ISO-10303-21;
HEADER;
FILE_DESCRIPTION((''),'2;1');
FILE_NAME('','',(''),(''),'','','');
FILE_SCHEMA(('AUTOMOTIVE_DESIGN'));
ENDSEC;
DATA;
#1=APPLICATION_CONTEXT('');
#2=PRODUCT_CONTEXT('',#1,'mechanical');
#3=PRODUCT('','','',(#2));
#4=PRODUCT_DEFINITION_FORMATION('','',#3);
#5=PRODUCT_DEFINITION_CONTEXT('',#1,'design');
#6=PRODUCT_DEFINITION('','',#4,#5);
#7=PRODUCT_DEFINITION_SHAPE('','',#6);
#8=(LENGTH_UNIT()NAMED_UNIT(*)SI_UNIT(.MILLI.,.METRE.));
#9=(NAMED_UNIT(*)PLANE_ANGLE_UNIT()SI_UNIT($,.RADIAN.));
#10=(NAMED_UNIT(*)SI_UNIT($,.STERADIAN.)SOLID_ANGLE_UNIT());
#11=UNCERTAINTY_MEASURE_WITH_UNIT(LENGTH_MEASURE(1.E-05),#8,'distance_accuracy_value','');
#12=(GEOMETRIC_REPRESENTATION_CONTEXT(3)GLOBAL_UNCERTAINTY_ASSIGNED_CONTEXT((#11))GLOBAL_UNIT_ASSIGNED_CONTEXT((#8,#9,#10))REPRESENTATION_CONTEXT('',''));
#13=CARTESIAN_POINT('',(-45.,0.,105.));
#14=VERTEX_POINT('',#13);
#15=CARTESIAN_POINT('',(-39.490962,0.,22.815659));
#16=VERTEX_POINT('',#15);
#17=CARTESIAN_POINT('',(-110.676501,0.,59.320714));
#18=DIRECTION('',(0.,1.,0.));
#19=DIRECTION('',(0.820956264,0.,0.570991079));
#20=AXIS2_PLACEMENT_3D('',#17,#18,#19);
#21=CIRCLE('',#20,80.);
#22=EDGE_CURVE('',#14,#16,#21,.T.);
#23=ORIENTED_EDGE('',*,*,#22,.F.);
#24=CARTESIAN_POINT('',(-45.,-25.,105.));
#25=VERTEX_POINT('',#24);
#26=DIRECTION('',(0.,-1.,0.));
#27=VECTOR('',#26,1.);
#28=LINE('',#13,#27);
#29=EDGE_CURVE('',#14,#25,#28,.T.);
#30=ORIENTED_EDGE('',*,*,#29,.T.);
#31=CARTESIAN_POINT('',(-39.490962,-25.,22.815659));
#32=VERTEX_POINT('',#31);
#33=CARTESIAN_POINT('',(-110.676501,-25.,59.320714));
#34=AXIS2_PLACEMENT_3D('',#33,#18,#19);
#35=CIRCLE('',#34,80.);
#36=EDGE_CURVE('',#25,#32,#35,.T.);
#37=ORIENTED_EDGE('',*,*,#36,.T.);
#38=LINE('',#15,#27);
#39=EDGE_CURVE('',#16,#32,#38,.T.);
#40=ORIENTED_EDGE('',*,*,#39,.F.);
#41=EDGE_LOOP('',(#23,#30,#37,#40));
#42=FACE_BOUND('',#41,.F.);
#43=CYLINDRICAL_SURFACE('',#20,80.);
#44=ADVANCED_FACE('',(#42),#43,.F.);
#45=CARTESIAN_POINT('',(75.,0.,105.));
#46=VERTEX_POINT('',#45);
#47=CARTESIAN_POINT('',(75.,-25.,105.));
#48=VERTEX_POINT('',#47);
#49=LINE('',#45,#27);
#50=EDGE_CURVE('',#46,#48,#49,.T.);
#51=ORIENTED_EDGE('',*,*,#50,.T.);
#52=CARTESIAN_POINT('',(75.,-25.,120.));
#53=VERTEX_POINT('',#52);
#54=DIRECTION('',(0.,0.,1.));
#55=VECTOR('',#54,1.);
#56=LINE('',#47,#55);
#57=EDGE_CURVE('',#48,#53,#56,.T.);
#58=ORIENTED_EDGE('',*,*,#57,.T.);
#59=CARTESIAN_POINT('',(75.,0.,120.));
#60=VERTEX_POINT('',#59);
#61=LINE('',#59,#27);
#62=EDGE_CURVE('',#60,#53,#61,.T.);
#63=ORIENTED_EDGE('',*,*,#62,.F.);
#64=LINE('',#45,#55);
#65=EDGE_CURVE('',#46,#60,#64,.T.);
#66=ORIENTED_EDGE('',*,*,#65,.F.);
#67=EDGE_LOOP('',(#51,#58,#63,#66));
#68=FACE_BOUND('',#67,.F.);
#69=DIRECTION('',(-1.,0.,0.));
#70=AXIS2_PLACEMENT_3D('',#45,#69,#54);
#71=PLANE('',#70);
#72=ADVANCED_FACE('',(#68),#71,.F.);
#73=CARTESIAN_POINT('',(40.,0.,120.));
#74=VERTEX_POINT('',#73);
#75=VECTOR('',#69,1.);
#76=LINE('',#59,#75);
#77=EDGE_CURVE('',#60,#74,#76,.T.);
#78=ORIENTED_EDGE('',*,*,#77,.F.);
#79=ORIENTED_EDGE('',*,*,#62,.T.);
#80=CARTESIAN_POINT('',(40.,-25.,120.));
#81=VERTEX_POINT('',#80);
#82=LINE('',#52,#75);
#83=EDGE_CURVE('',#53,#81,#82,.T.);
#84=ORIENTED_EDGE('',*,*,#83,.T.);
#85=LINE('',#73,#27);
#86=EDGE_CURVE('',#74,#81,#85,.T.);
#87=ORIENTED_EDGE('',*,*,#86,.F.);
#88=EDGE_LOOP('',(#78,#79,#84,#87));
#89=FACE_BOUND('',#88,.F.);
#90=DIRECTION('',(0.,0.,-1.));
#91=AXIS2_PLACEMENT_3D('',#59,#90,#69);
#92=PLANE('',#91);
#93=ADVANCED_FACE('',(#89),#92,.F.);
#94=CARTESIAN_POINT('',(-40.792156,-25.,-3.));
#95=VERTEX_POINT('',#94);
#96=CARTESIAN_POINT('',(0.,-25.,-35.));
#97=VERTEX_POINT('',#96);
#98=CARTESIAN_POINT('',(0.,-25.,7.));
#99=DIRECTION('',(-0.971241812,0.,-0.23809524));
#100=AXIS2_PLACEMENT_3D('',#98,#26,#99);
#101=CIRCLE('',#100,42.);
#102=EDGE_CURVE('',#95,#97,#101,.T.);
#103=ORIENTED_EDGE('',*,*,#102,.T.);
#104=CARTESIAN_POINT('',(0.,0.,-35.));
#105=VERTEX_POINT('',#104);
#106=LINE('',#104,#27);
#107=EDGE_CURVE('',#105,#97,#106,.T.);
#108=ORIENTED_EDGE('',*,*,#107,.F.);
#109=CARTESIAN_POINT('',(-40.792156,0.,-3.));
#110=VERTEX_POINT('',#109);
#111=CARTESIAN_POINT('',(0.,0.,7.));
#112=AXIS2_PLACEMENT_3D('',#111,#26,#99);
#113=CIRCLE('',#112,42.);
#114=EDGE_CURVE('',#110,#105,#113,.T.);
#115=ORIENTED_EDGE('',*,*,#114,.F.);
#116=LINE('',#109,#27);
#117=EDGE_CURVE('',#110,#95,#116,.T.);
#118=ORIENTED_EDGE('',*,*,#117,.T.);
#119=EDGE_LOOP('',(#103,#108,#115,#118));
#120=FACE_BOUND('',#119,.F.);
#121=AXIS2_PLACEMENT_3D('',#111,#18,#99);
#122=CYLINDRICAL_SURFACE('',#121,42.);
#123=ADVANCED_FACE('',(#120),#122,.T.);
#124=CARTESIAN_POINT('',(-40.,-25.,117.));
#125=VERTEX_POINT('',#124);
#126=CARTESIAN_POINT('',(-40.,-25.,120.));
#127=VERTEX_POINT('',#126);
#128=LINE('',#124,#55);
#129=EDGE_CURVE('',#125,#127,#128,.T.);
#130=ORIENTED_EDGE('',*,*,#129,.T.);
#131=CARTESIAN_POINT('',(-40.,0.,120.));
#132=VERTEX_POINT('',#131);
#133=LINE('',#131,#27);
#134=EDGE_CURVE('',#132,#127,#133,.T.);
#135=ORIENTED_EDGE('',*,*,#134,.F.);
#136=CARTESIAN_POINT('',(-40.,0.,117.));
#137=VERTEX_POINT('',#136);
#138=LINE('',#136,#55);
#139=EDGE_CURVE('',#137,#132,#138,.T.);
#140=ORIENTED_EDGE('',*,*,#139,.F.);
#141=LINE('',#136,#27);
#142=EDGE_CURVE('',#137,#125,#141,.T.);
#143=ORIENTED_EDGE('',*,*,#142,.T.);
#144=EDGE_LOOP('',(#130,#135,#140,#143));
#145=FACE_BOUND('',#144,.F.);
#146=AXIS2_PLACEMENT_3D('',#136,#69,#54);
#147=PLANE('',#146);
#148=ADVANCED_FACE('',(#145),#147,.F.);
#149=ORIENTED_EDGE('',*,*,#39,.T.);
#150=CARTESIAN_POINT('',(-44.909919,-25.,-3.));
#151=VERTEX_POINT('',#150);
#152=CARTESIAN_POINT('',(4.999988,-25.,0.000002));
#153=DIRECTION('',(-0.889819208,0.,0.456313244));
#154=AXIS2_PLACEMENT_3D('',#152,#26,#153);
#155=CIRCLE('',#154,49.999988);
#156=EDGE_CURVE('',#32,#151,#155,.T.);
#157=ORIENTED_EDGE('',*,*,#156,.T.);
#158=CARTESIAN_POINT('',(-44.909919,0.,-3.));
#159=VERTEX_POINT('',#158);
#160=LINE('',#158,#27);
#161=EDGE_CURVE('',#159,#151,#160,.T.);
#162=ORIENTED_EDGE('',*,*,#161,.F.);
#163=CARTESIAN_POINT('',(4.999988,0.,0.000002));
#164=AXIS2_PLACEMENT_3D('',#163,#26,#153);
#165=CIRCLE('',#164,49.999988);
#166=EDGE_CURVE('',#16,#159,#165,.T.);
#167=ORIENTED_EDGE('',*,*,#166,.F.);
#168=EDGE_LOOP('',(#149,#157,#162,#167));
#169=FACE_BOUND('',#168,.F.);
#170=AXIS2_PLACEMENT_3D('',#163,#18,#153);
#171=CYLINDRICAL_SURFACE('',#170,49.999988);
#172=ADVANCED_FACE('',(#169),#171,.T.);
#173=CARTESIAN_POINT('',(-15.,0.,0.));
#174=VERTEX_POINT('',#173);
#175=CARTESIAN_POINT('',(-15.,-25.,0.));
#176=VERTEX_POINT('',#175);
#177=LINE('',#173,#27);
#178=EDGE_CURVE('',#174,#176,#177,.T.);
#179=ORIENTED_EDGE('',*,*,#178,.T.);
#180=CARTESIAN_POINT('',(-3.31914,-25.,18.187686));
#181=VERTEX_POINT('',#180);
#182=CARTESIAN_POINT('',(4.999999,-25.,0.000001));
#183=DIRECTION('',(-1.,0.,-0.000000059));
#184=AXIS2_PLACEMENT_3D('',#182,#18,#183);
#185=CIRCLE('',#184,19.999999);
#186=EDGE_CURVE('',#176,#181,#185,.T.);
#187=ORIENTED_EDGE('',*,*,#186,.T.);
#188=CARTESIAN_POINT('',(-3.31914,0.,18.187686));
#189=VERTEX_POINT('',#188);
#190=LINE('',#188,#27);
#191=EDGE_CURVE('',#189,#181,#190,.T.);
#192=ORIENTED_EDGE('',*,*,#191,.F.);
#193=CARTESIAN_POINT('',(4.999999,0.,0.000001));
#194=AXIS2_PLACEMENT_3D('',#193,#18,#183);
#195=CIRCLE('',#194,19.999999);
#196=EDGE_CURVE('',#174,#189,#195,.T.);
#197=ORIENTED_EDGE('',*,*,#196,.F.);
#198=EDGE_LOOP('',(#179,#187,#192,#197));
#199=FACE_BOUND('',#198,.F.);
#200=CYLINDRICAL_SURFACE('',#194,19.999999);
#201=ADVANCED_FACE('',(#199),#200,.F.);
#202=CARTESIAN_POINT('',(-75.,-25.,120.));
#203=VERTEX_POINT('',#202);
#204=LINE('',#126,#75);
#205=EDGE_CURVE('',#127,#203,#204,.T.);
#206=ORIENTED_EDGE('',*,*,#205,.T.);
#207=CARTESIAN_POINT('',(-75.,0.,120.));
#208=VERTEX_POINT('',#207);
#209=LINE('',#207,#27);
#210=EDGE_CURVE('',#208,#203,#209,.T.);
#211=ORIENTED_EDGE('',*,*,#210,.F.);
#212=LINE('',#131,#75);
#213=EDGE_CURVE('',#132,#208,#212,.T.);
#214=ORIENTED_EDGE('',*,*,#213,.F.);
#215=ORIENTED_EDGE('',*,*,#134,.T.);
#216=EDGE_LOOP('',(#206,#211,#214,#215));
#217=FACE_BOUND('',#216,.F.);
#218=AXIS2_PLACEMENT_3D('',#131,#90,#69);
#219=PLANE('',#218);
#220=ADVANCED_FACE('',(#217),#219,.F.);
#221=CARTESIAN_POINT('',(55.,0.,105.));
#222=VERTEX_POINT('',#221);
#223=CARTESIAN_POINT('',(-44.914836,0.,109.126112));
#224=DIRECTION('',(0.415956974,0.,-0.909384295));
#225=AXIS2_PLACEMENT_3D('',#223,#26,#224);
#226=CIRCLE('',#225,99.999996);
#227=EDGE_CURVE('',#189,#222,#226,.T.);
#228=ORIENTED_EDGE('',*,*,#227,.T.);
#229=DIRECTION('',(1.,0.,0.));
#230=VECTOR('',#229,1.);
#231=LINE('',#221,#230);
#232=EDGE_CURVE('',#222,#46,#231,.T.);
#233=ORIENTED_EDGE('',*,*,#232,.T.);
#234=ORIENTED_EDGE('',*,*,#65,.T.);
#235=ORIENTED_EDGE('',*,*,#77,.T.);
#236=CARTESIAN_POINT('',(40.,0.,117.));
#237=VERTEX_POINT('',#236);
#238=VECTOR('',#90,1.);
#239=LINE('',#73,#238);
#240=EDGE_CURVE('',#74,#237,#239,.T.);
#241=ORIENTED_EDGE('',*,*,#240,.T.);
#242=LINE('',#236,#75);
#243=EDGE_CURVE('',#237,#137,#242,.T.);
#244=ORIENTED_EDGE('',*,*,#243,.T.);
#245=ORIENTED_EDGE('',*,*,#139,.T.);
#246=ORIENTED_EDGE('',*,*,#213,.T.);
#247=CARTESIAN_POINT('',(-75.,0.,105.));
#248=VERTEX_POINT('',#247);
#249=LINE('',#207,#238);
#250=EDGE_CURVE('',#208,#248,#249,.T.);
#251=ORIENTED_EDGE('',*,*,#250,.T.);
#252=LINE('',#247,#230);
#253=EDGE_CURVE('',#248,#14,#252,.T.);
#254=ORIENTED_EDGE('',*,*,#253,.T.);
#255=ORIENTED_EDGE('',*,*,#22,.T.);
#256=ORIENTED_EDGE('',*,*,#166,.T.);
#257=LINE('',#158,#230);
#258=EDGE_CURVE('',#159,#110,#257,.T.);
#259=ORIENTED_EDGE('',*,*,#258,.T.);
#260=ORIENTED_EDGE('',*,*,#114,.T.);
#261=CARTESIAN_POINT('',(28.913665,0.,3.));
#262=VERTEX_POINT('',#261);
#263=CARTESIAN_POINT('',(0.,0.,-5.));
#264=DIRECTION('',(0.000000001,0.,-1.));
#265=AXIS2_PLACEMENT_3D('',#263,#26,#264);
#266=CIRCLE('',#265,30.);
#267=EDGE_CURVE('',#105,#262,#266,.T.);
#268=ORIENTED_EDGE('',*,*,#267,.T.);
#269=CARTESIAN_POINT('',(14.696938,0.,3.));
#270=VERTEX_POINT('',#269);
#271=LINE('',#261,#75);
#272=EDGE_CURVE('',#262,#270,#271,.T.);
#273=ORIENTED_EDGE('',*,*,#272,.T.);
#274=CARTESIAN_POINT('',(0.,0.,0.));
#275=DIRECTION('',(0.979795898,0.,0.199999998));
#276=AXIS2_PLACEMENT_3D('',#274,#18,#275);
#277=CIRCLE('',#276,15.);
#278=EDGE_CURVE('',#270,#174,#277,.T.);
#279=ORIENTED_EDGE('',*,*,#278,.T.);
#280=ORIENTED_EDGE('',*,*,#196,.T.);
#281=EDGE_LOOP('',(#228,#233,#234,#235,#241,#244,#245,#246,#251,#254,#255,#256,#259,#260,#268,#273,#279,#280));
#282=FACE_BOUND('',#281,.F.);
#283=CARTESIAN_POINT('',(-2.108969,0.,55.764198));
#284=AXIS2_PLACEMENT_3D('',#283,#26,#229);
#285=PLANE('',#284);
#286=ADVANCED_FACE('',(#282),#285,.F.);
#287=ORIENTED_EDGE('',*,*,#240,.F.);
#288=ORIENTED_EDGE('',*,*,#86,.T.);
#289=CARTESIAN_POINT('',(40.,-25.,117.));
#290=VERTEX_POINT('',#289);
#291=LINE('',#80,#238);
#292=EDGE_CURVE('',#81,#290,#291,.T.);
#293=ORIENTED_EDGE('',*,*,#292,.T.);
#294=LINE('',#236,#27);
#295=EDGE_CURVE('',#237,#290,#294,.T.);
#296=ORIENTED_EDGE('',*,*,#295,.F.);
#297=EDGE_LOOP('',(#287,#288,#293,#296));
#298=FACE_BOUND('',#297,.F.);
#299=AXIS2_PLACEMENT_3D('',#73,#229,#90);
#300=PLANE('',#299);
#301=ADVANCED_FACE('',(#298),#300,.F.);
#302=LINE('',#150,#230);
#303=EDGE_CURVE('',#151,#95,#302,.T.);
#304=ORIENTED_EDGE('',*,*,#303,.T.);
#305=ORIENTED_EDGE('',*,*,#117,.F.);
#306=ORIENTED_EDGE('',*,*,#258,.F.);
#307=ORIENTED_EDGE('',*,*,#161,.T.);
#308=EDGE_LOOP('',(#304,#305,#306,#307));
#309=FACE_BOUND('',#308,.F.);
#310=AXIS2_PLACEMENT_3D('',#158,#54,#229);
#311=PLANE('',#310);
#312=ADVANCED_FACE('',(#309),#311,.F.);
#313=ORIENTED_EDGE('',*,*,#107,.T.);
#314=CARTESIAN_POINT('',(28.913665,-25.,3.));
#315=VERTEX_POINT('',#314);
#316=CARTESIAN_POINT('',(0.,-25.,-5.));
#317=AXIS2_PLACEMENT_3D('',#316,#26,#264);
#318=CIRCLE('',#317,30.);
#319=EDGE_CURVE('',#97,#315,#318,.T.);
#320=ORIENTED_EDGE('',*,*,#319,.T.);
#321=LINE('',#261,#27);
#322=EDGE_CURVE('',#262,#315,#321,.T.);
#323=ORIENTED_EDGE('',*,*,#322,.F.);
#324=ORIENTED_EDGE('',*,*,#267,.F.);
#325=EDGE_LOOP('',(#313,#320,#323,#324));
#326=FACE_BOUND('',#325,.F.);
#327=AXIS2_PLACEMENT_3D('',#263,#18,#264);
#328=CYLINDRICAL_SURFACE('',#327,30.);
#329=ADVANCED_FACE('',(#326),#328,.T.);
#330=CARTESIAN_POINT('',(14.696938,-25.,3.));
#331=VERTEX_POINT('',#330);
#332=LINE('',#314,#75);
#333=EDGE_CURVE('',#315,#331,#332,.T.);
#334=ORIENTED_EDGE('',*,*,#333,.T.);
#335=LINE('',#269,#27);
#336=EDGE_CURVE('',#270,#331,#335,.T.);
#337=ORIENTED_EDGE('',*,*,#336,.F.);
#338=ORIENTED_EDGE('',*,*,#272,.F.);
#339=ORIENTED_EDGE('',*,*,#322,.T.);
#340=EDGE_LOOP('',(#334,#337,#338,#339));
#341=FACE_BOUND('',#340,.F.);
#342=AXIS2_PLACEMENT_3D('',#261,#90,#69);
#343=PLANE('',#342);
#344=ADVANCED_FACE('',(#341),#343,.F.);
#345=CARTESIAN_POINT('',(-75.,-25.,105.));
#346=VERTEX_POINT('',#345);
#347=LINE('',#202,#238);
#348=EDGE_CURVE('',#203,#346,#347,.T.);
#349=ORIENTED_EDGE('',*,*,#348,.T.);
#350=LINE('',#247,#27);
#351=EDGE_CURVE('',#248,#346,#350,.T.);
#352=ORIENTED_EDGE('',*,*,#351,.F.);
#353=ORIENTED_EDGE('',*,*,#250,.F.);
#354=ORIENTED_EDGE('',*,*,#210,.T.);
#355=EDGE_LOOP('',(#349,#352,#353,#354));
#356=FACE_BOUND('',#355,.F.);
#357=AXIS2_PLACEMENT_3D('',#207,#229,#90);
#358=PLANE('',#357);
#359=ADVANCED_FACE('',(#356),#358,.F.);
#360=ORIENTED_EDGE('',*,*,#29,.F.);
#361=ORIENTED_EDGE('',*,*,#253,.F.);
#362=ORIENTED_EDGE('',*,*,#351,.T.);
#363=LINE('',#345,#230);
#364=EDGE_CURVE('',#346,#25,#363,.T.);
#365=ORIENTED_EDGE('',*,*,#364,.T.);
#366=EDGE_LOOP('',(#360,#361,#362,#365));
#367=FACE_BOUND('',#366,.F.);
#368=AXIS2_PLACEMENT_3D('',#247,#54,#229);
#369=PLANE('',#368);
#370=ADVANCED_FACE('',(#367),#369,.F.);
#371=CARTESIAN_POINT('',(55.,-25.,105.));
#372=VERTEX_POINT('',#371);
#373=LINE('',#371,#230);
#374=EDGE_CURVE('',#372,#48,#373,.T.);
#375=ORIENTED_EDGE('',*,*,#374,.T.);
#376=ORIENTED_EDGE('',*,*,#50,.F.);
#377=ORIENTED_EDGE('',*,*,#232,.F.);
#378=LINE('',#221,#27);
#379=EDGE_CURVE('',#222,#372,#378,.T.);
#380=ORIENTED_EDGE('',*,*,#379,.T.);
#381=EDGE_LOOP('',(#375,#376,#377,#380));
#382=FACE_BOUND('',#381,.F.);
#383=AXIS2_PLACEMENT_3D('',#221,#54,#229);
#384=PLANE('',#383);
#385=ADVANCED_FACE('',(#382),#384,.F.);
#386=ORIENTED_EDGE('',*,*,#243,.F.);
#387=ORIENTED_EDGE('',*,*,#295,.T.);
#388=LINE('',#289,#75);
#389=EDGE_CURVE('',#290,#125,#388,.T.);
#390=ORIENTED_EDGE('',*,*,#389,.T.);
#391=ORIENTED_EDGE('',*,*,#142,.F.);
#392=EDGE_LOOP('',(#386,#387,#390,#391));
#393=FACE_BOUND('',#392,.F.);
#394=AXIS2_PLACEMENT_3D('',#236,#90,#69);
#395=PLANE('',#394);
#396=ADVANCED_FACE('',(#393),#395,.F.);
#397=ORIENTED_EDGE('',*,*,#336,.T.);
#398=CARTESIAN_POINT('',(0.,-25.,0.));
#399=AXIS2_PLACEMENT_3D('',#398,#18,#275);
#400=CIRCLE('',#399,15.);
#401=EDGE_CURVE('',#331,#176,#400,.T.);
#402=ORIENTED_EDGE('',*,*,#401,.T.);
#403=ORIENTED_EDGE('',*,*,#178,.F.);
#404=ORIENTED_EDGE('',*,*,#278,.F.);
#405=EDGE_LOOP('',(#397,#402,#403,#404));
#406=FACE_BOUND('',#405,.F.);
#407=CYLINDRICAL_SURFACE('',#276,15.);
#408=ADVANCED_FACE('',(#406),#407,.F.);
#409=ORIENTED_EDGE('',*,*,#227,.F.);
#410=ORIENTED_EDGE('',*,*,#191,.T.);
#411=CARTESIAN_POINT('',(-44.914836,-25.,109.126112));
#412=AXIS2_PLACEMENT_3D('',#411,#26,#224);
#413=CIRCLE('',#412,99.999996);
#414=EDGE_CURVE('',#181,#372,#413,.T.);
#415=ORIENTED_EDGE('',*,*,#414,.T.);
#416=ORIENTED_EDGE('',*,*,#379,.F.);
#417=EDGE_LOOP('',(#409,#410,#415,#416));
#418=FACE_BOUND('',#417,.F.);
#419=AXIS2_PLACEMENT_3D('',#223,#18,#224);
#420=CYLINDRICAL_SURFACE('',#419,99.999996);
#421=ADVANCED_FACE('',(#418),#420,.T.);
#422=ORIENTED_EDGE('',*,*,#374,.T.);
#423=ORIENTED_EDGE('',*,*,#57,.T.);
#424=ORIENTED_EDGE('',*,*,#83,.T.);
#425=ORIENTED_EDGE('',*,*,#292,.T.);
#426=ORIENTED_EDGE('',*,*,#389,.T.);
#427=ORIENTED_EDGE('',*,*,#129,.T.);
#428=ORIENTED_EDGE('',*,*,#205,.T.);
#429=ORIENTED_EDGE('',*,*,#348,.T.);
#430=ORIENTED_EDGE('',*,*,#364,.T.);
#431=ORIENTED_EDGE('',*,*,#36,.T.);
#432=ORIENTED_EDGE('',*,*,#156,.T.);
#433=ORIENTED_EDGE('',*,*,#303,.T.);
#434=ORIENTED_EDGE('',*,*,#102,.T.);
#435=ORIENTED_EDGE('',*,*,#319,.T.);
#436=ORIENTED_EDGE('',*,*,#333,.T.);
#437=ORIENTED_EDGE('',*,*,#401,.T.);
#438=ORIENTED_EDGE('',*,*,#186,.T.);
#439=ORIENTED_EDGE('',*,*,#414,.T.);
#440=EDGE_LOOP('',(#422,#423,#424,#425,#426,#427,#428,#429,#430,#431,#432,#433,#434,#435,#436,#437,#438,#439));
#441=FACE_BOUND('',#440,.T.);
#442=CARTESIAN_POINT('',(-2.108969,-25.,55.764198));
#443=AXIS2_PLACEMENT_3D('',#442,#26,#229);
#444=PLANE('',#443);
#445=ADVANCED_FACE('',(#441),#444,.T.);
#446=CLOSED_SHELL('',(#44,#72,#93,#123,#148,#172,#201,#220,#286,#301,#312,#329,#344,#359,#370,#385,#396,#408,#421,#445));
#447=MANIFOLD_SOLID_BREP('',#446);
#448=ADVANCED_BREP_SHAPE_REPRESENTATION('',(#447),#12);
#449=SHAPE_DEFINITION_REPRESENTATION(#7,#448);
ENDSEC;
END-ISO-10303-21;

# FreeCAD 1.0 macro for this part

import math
import FreeCAD as App
import Part
import Sketcher
Q = App.Units.Quantity

doc = App.newDocument("Part")
body = doc.addObject("PartDesign::Body", "Body")

sketch1 = body.newObject("Sketcher::SketchObject", "Sketch")
sketch1.AttachmentSupport = (doc.getObject("XZ_Plane"), [""])
sketch1.MapMode = "FlatFace"
sketch1.addGeometry([
    Part.ArcOfCircle(Part.Circle(App.Vector(-44.9, 109.1, 0), App.Vector(0, 0, 1), 100), math.radians(-65), math.radians(-2)),
    Part.LineSegment(App.Vector(55, 105, 0), App.Vector(75, 105, 0)),
    Part.LineSegment(App.Vector(75, 105, 0), App.Vector(75, 120, 0)),
    Part.LineSegment(App.Vector(75, 120, 0), App.Vector(40, 120, 0)),
    Part.LineSegment(App.Vector(40, 120, 0), App.Vector(40, 117, 0)),
    Part.LineSegment(App.Vector(40, 117, 0), App.Vector(-40, 117, 0)),
    Part.LineSegment(App.Vector(-40, 117, 0), App.Vector(-40, 120, 0)),
    Part.LineSegment(App.Vector(-40, 120, 0), App.Vector(-75, 120, 0)),
    Part.LineSegment(App.Vector(-75, 120, 0), App.Vector(-75, 105, 0)),
    Part.LineSegment(App.Vector(-75, 105, 0), App.Vector(-45, 105, 0)),
    Part.ArcOfCircle(Part.Circle(App.Vector(-110.7, 59.3, 0), App.Vector(0, 0, 1), 80), math.radians(-27), math.radians(35)),
    Part.ArcOfCircle(Part.Circle(App.Vector(5, 0, 0), App.Vector(0, 0, 1), 50), math.radians(153), math.radians(183)),
    Part.LineSegment(App.Vector(-44.9, -3, 0), App.Vector(-40.8, -3, 0)),
    Part.ArcOfCircle(Part.Circle(App.Vector(0, 7, 0), App.Vector(0, 0, 1), 42), math.radians(-166), math.radians(-90)),
    Part.ArcOfCircle(Part.Circle(App.Vector(0, -5, 0), App.Vector(0, 0, 1), 30), math.radians(-90), math.radians(15)),
    Part.LineSegment(App.Vector(28.9, 3, 0), App.Vector(14.7, 3, 0)),
    Part.ArcOfCircle(Part.Circle(App.Vector(0, 0, 0), App.Vector(0, 0, 1), 15), math.radians(-180), math.radians(12)),
    Part.ArcOfCircle(Part.Circle(App.Vector(5, 0, 0), App.Vector(0, 0, 1), 20), math.radians(115), math.radians(180)),
], False)
sketch1.addConstraint([
    Sketcher.Constraint("Coincident", 0, 2, 1, 1),
    Sketcher.Constraint("Coincident", 1, 2, 2, 1),
    Sketcher.Constraint("Coincident", 2, 2, 3, 1),
    Sketcher.Constraint("Coincident", 3, 2, 4, 1),
    Sketcher.Constraint("Coincident", 4, 2, 5, 1),
    Sketcher.Constraint("Coincident", 5, 2, 6, 1),
    Sketcher.Constraint("Coincident", 6, 2, 7, 1),
    Sketcher.Constraint("Coincident", 7, 2, 8, 1),
    Sketcher.Constraint("Coincident", 8, 2, 9, 1),
    Sketcher.Constraint("Coincident", 9, 2, 10, 2),
    Sketcher.Constraint("Tangent", 10, 1, 11, 1),
    Sketcher.Constraint("Coincident", 11, 2, 12, 1),
    Sketcher.Constraint("Coincident", 12, 2, 13, 1),
    Sketcher.Constraint("Tangent", 13, 2, 14, 1),
    Sketcher.Constraint("Coincident", 14, 2, 15, 1),
    Sketcher.Constraint("Coincident", 15, 2, 16, 2),
    Sketcher.Constraint("Tangent", 16, 1, 17, 2),
    Sketcher.Constraint("Tangent", 17, 1, 0, 1),
    Sketcher.Constraint("Horizontal", 1),
    Sketcher.Constraint("Vertical", 2),
    Sketcher.Constraint("Horizontal", 3),
    Sketcher.Constraint("Vertical", 4),
    Sketcher.Constraint("Horizontal", 5),
    Sketcher.Constraint("Vertical", 6),
    Sketcher.Constraint("Horizontal", 7),
    Sketcher.Constraint("Vertical", 8),
    Sketcher.Constraint("Horizontal", 9),
    Sketcher.Constraint("Horizontal", 12),
    Sketcher.Constraint("Horizontal", 15),
    Sketcher.Constraint("Coincident", 16, 3, -1, 1),
    Sketcher.Constraint("Symmetric", 3, 2, 6, 2, -2),
    Sketcher.Constraint("Symmetric", 1, 2, 8, 2, -2),
    Sketcher.Constraint("PointOnObject", 13, 3, -2),
    Sketcher.Constraint("PointOnObject", 14, 3, -2),
    Sketcher.Constraint("PointOnObject", 17, 3, -1),
    Sketcher.Constraint("Radius", 10, Q("80 mm")),
    Sketcher.Constraint("Radius", 13, Q("42 mm")),
    Sketcher.Constraint("Radius", 14, Q("30 mm")),
    Sketcher.Constraint("Radius", 16, Q("15 mm")),
    Sketcher.Constraint("Radius", 17, Q("19.999999 mm")),
    Sketcher.Constraint("DistanceX", 1, 1, 1, 2, Q("20 mm")),
    Sketcher.Constraint("DistanceX", 3, 2, 3, 1, Q("35 mm")),
    Sketcher.Constraint("DistanceX", 5, 2, 5, 1, Q("80 mm")),
    Sketcher.Constraint("DistanceX", 9, 1, 9, 2, Q("30 mm")),
    Sketcher.Constraint("DistanceY", 2, 1, 2, 2, Q("15 mm")),
    Sketcher.Constraint("DistanceY", 4, 2, 4, 1, Q("3 mm")),
    Sketcher.Constraint("DistanceY", -1, 1, 13, 3, Q("7 mm")),
    Sketcher.Constraint("DistanceY", -1, 1, 0, 2, Q("105 mm")),
    Sketcher.Constraint("DistanceY", 11, 2, -1, 1, Q("3 mm")),
    Sketcher.Constraint("DistanceY", -1, 1, 14, 2, Q("3 mm")),
    Sketcher.Constraint("DistanceY", 14, 3, 11, 3, Q("5.000002 mm")),
    Sketcher.Constraint("Radius", 11, Q("49.999988 mm")),
    Sketcher.Constraint("Radius", 0, Q("99.999996 mm")),
    Sketcher.Constraint("DistanceX", 10, 3, -1, 1, Q("110.676501 mm")),
])
pad1 = body.newObject("PartDesign::Pad", "Pad")
pad1.Profile = sketch1
pad1.Length = 25

doc.recompute()
